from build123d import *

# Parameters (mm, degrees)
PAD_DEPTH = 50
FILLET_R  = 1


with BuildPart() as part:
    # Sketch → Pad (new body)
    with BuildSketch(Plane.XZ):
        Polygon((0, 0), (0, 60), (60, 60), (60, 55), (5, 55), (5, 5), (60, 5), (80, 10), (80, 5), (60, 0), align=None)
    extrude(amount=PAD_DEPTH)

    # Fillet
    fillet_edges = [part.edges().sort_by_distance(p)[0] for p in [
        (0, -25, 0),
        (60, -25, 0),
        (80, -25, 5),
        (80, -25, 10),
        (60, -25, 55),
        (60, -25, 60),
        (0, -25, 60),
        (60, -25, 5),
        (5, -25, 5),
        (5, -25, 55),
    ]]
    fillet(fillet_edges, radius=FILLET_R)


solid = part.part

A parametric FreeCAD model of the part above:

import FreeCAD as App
import Part
import Sketcher
Q = App.Units.Quantity


def edges_at(feature, points):
    """Names of the edges that pass closest to the given points."""
    edges = feature.Shape.Edges
    near = lambda p: min(range(len(edges)), key=lambda i: edges[i].distToShape(Part.Vertex(*p))[0])
    return sorted({f"Edge{near(p) + 1}" for p in points})


def add_polygon(sketch, points):
    """Adds a closed chain of lines whose ends are joined by coincident constraints."""
    first, n = sketch.GeometryCount, len(points)
    for a, b in zip(points, points[1:] + points[:1]):
        sketch.addGeometry(Part.LineSegment(App.Vector(*a, 0), App.Vector(*b, 0)), False)
    for i in range(n):
        sketch.addConstraint(Sketcher.Constraint("Coincident", first + i, 2, first + (i + 1) % n, 1))

doc = App.newDocument("Part")
body = doc.addObject("PartDesign::Body", "Body")

# Sketch on XZ plane
sketch1 = body.newObject("Sketcher::SketchObject", "Sketch")
sketch1.AttachmentSupport = (doc.getObject("XZ_Plane"), [""])
sketch1.MapMode = "FlatFace"
add_polygon(sketch1, [(0, 60), (0, 0), (60, 0), (80, 5), (80, 10), (60, 5), (5, 5), (5, 55), (60, 55), (60, 60)])  # lines 0-9
sketch1.addConstraint([
    Sketcher.Constraint("Vertical", 0),
    Sketcher.Constraint("Horizontal", 1),
    Sketcher.Constraint("Vertical", 3),
    Sketcher.Constraint("Horizontal", 5),
    Sketcher.Constraint("Vertical", 6),
    Sketcher.Constraint("Horizontal", 7),
    Sketcher.Constraint("Vertical", 8),
    Sketcher.Constraint("Horizontal", 9),
    Sketcher.Constraint("Coincident", 0, 2, -1, 1),
    Sketcher.Constraint("Parallel", 2, 4),
    Sketcher.Constraint("Horizontal", 2, 2, 4, 2),
    Sketcher.Constraint("Vertical", 1, 2, 4, 2),
    Sketcher.Constraint("Vertical", 4, 2, 7, 2),
    Sketcher.Constraint("Equal", 9, 0),
    Sketcher.Constraint("Equal", 3, 8),
    Sketcher.Constraint("DistanceX", 1, 1, 1, 2, Q("60 mm")),
    Sketcher.Constraint("DistanceX", 5, 2, 5, 1, Q("55 mm")),
    Sketcher.Constraint("DistanceY", 3, 1, 3, 2, Q("5 mm")),
    Sketcher.Constraint("DistanceX", -1, 1, 2, 2, Q("80 mm")),
])
pad1 = body.newObject("PartDesign::Pad", "Pad")
pad1.Profile = sketch1
pad1.Length = 50
doc.recompute()

fillet = body.newObject("PartDesign::Fillet", "Fillet")
fillet.Base = (pad1, edges_at(pad1, [
    (0, -25, 0),
    (60, -25, 0),
    (80, -25, 5),
    (80, -25, 10),
    (60, -25, 55),
    (60, -25, 60),
    (0, -25, 60),
    (60, -25, 5),
    (5, -25, 5),
    (5, -25, 55),
]))
fillet.Radius = 1

doc.recompute()
